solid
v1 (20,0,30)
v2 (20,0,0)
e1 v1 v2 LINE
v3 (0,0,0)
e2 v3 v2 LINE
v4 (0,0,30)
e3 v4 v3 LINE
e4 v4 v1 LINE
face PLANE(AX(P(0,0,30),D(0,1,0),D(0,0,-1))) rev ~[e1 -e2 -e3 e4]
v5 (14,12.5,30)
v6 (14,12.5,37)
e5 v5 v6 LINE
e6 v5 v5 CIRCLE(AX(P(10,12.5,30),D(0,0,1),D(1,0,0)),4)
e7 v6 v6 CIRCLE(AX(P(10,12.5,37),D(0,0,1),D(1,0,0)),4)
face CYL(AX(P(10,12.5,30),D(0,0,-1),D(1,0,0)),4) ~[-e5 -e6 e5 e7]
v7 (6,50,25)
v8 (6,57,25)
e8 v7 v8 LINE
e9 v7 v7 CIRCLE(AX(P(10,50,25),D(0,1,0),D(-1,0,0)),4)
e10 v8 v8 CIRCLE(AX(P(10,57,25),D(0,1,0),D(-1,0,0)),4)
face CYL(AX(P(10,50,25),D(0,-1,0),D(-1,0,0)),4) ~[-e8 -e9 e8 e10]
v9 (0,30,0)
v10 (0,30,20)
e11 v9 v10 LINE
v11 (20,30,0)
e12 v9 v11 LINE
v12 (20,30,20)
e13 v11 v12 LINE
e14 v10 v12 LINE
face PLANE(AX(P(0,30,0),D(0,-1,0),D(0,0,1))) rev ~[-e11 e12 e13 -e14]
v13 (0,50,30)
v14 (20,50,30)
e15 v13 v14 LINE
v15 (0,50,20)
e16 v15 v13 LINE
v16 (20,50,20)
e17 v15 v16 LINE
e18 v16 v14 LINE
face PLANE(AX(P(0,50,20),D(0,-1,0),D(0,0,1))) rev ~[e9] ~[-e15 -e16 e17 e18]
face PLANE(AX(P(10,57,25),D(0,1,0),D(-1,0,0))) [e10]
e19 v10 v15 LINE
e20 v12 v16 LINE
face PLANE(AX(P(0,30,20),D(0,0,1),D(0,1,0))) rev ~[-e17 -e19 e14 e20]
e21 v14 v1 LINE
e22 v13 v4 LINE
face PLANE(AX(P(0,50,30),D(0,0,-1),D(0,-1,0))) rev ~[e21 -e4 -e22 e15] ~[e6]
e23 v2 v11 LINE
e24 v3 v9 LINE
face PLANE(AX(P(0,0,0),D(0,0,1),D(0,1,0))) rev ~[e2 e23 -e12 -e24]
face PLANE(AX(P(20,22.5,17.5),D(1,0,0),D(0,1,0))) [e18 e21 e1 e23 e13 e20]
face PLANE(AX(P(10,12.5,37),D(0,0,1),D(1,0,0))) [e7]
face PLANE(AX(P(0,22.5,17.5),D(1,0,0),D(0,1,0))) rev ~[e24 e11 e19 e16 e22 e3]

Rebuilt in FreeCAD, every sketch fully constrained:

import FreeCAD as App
import Part
import Sketcher

V = App.Vector
Q = App.Units.Quantity


def add_polygon(sketch, points):
    """Adds a closed chain of lines whose ends are joined by coincident constraints."""
    first, n = sketch.GeometryCount, len(points)
    for a, b in zip(points, points[1:] + points[:1]):
        sketch.addGeometry(Part.LineSegment(App.Vector(*a, 0), App.Vector(*b, 0)), False)
    for i in range(n):
        sketch.addConstraint(Sketcher.Constraint("Coincident", first + i, 2, first + (i + 1) % n, 1))

doc = App.newDocument("Part")
body = doc.addObject("PartDesign::Body", "Body")

sketch1 = body.newObject("Sketcher::SketchObject", "Sketch")
sketch1.AttachmentSupport = (doc.getObject("YZ_Plane"), [""])
sketch1.MapMode = "FlatFace"
add_polygon(sketch1, [(0, 30), (0, 0), (30, 0), (30, 20), (50, 20), (50, 30)])
sketch1.addConstraint([
    Sketcher.Constraint("Vertical", 0),
    Sketcher.Constraint("Horizontal", 1),
    Sketcher.Constraint("Vertical", 2),
    Sketcher.Constraint("Horizontal", 3),
    Sketcher.Constraint("Vertical", 4),
    Sketcher.Constraint("Horizontal", 5),
    Sketcher.Constraint("Coincident", 0, 2, -1, 1),
    Sketcher.Constraint("Equal", 1, 0),
    Sketcher.Constraint("Equal", 3, 2),
    Sketcher.Constraint("DistanceX", 1, 1, 1, 2, Q("30 mm")),
    Sketcher.Constraint("DistanceX", 3, 1, 3, 2, Q("20 mm")),
])
pad1 = body.newObject("PartDesign::Pad", "Pad")
pad1.Profile = sketch1
pad1.Length = 20

sketch2 = body.newObject("Sketcher::SketchObject", "Sketch001")
sketch2.AttachmentSupport = (doc.getObject("XZ_Plane"), [""])
sketch2.MapMode = "FlatFace"
sketch2.AttachmentOffset = App.Placement(V(0, 0, -50), App.Rotation())
sketch2.addGeometry(Part.Circle(V(10, 25, 0), V(0, 0, 1), 4), False)
sketch2.addConstraint([
    Sketcher.Constraint("Diameter", 0, Q("8 mm")),
    Sketcher.Constraint("DistanceX", -1, 1, 0, 3, Q("10 mm")),
    Sketcher.Constraint("DistanceY", -1, 1, 0, 3, Q("25 mm")),
])
pad2 = body.newObject("PartDesign::Pad", "Pad001")
pad2.Profile = sketch2
pad2.Length = 7
pad2.Reversed = True

sketch3 = body.newObject("Sketcher::SketchObject", "Sketch002")
sketch3.AttachmentSupport = (doc.getObject("XY_Plane"), [""])
sketch3.MapMode = "FlatFace"
sketch3.AttachmentOffset = App.Placement(V(0, 0, 30), App.Rotation())
sketch3.addGeometry(Part.Circle(V(10, 12.5, 0), V(0, 0, 1), 4), False)
sketch3.addConstraint([
    Sketcher.Constraint("Diameter", 0, Q("8 mm")),
    Sketcher.Constraint("DistanceX", -1, 1, 0, 3, Q("10 mm")),
    Sketcher.Constraint("DistanceY", -1, 1, 0, 3, Q("12.5 mm")),
])
pad3 = body.newObject("PartDesign::Pad", "Pad002")
pad3.Profile = sketch3
pad3.Length = 7

doc.recompute()
